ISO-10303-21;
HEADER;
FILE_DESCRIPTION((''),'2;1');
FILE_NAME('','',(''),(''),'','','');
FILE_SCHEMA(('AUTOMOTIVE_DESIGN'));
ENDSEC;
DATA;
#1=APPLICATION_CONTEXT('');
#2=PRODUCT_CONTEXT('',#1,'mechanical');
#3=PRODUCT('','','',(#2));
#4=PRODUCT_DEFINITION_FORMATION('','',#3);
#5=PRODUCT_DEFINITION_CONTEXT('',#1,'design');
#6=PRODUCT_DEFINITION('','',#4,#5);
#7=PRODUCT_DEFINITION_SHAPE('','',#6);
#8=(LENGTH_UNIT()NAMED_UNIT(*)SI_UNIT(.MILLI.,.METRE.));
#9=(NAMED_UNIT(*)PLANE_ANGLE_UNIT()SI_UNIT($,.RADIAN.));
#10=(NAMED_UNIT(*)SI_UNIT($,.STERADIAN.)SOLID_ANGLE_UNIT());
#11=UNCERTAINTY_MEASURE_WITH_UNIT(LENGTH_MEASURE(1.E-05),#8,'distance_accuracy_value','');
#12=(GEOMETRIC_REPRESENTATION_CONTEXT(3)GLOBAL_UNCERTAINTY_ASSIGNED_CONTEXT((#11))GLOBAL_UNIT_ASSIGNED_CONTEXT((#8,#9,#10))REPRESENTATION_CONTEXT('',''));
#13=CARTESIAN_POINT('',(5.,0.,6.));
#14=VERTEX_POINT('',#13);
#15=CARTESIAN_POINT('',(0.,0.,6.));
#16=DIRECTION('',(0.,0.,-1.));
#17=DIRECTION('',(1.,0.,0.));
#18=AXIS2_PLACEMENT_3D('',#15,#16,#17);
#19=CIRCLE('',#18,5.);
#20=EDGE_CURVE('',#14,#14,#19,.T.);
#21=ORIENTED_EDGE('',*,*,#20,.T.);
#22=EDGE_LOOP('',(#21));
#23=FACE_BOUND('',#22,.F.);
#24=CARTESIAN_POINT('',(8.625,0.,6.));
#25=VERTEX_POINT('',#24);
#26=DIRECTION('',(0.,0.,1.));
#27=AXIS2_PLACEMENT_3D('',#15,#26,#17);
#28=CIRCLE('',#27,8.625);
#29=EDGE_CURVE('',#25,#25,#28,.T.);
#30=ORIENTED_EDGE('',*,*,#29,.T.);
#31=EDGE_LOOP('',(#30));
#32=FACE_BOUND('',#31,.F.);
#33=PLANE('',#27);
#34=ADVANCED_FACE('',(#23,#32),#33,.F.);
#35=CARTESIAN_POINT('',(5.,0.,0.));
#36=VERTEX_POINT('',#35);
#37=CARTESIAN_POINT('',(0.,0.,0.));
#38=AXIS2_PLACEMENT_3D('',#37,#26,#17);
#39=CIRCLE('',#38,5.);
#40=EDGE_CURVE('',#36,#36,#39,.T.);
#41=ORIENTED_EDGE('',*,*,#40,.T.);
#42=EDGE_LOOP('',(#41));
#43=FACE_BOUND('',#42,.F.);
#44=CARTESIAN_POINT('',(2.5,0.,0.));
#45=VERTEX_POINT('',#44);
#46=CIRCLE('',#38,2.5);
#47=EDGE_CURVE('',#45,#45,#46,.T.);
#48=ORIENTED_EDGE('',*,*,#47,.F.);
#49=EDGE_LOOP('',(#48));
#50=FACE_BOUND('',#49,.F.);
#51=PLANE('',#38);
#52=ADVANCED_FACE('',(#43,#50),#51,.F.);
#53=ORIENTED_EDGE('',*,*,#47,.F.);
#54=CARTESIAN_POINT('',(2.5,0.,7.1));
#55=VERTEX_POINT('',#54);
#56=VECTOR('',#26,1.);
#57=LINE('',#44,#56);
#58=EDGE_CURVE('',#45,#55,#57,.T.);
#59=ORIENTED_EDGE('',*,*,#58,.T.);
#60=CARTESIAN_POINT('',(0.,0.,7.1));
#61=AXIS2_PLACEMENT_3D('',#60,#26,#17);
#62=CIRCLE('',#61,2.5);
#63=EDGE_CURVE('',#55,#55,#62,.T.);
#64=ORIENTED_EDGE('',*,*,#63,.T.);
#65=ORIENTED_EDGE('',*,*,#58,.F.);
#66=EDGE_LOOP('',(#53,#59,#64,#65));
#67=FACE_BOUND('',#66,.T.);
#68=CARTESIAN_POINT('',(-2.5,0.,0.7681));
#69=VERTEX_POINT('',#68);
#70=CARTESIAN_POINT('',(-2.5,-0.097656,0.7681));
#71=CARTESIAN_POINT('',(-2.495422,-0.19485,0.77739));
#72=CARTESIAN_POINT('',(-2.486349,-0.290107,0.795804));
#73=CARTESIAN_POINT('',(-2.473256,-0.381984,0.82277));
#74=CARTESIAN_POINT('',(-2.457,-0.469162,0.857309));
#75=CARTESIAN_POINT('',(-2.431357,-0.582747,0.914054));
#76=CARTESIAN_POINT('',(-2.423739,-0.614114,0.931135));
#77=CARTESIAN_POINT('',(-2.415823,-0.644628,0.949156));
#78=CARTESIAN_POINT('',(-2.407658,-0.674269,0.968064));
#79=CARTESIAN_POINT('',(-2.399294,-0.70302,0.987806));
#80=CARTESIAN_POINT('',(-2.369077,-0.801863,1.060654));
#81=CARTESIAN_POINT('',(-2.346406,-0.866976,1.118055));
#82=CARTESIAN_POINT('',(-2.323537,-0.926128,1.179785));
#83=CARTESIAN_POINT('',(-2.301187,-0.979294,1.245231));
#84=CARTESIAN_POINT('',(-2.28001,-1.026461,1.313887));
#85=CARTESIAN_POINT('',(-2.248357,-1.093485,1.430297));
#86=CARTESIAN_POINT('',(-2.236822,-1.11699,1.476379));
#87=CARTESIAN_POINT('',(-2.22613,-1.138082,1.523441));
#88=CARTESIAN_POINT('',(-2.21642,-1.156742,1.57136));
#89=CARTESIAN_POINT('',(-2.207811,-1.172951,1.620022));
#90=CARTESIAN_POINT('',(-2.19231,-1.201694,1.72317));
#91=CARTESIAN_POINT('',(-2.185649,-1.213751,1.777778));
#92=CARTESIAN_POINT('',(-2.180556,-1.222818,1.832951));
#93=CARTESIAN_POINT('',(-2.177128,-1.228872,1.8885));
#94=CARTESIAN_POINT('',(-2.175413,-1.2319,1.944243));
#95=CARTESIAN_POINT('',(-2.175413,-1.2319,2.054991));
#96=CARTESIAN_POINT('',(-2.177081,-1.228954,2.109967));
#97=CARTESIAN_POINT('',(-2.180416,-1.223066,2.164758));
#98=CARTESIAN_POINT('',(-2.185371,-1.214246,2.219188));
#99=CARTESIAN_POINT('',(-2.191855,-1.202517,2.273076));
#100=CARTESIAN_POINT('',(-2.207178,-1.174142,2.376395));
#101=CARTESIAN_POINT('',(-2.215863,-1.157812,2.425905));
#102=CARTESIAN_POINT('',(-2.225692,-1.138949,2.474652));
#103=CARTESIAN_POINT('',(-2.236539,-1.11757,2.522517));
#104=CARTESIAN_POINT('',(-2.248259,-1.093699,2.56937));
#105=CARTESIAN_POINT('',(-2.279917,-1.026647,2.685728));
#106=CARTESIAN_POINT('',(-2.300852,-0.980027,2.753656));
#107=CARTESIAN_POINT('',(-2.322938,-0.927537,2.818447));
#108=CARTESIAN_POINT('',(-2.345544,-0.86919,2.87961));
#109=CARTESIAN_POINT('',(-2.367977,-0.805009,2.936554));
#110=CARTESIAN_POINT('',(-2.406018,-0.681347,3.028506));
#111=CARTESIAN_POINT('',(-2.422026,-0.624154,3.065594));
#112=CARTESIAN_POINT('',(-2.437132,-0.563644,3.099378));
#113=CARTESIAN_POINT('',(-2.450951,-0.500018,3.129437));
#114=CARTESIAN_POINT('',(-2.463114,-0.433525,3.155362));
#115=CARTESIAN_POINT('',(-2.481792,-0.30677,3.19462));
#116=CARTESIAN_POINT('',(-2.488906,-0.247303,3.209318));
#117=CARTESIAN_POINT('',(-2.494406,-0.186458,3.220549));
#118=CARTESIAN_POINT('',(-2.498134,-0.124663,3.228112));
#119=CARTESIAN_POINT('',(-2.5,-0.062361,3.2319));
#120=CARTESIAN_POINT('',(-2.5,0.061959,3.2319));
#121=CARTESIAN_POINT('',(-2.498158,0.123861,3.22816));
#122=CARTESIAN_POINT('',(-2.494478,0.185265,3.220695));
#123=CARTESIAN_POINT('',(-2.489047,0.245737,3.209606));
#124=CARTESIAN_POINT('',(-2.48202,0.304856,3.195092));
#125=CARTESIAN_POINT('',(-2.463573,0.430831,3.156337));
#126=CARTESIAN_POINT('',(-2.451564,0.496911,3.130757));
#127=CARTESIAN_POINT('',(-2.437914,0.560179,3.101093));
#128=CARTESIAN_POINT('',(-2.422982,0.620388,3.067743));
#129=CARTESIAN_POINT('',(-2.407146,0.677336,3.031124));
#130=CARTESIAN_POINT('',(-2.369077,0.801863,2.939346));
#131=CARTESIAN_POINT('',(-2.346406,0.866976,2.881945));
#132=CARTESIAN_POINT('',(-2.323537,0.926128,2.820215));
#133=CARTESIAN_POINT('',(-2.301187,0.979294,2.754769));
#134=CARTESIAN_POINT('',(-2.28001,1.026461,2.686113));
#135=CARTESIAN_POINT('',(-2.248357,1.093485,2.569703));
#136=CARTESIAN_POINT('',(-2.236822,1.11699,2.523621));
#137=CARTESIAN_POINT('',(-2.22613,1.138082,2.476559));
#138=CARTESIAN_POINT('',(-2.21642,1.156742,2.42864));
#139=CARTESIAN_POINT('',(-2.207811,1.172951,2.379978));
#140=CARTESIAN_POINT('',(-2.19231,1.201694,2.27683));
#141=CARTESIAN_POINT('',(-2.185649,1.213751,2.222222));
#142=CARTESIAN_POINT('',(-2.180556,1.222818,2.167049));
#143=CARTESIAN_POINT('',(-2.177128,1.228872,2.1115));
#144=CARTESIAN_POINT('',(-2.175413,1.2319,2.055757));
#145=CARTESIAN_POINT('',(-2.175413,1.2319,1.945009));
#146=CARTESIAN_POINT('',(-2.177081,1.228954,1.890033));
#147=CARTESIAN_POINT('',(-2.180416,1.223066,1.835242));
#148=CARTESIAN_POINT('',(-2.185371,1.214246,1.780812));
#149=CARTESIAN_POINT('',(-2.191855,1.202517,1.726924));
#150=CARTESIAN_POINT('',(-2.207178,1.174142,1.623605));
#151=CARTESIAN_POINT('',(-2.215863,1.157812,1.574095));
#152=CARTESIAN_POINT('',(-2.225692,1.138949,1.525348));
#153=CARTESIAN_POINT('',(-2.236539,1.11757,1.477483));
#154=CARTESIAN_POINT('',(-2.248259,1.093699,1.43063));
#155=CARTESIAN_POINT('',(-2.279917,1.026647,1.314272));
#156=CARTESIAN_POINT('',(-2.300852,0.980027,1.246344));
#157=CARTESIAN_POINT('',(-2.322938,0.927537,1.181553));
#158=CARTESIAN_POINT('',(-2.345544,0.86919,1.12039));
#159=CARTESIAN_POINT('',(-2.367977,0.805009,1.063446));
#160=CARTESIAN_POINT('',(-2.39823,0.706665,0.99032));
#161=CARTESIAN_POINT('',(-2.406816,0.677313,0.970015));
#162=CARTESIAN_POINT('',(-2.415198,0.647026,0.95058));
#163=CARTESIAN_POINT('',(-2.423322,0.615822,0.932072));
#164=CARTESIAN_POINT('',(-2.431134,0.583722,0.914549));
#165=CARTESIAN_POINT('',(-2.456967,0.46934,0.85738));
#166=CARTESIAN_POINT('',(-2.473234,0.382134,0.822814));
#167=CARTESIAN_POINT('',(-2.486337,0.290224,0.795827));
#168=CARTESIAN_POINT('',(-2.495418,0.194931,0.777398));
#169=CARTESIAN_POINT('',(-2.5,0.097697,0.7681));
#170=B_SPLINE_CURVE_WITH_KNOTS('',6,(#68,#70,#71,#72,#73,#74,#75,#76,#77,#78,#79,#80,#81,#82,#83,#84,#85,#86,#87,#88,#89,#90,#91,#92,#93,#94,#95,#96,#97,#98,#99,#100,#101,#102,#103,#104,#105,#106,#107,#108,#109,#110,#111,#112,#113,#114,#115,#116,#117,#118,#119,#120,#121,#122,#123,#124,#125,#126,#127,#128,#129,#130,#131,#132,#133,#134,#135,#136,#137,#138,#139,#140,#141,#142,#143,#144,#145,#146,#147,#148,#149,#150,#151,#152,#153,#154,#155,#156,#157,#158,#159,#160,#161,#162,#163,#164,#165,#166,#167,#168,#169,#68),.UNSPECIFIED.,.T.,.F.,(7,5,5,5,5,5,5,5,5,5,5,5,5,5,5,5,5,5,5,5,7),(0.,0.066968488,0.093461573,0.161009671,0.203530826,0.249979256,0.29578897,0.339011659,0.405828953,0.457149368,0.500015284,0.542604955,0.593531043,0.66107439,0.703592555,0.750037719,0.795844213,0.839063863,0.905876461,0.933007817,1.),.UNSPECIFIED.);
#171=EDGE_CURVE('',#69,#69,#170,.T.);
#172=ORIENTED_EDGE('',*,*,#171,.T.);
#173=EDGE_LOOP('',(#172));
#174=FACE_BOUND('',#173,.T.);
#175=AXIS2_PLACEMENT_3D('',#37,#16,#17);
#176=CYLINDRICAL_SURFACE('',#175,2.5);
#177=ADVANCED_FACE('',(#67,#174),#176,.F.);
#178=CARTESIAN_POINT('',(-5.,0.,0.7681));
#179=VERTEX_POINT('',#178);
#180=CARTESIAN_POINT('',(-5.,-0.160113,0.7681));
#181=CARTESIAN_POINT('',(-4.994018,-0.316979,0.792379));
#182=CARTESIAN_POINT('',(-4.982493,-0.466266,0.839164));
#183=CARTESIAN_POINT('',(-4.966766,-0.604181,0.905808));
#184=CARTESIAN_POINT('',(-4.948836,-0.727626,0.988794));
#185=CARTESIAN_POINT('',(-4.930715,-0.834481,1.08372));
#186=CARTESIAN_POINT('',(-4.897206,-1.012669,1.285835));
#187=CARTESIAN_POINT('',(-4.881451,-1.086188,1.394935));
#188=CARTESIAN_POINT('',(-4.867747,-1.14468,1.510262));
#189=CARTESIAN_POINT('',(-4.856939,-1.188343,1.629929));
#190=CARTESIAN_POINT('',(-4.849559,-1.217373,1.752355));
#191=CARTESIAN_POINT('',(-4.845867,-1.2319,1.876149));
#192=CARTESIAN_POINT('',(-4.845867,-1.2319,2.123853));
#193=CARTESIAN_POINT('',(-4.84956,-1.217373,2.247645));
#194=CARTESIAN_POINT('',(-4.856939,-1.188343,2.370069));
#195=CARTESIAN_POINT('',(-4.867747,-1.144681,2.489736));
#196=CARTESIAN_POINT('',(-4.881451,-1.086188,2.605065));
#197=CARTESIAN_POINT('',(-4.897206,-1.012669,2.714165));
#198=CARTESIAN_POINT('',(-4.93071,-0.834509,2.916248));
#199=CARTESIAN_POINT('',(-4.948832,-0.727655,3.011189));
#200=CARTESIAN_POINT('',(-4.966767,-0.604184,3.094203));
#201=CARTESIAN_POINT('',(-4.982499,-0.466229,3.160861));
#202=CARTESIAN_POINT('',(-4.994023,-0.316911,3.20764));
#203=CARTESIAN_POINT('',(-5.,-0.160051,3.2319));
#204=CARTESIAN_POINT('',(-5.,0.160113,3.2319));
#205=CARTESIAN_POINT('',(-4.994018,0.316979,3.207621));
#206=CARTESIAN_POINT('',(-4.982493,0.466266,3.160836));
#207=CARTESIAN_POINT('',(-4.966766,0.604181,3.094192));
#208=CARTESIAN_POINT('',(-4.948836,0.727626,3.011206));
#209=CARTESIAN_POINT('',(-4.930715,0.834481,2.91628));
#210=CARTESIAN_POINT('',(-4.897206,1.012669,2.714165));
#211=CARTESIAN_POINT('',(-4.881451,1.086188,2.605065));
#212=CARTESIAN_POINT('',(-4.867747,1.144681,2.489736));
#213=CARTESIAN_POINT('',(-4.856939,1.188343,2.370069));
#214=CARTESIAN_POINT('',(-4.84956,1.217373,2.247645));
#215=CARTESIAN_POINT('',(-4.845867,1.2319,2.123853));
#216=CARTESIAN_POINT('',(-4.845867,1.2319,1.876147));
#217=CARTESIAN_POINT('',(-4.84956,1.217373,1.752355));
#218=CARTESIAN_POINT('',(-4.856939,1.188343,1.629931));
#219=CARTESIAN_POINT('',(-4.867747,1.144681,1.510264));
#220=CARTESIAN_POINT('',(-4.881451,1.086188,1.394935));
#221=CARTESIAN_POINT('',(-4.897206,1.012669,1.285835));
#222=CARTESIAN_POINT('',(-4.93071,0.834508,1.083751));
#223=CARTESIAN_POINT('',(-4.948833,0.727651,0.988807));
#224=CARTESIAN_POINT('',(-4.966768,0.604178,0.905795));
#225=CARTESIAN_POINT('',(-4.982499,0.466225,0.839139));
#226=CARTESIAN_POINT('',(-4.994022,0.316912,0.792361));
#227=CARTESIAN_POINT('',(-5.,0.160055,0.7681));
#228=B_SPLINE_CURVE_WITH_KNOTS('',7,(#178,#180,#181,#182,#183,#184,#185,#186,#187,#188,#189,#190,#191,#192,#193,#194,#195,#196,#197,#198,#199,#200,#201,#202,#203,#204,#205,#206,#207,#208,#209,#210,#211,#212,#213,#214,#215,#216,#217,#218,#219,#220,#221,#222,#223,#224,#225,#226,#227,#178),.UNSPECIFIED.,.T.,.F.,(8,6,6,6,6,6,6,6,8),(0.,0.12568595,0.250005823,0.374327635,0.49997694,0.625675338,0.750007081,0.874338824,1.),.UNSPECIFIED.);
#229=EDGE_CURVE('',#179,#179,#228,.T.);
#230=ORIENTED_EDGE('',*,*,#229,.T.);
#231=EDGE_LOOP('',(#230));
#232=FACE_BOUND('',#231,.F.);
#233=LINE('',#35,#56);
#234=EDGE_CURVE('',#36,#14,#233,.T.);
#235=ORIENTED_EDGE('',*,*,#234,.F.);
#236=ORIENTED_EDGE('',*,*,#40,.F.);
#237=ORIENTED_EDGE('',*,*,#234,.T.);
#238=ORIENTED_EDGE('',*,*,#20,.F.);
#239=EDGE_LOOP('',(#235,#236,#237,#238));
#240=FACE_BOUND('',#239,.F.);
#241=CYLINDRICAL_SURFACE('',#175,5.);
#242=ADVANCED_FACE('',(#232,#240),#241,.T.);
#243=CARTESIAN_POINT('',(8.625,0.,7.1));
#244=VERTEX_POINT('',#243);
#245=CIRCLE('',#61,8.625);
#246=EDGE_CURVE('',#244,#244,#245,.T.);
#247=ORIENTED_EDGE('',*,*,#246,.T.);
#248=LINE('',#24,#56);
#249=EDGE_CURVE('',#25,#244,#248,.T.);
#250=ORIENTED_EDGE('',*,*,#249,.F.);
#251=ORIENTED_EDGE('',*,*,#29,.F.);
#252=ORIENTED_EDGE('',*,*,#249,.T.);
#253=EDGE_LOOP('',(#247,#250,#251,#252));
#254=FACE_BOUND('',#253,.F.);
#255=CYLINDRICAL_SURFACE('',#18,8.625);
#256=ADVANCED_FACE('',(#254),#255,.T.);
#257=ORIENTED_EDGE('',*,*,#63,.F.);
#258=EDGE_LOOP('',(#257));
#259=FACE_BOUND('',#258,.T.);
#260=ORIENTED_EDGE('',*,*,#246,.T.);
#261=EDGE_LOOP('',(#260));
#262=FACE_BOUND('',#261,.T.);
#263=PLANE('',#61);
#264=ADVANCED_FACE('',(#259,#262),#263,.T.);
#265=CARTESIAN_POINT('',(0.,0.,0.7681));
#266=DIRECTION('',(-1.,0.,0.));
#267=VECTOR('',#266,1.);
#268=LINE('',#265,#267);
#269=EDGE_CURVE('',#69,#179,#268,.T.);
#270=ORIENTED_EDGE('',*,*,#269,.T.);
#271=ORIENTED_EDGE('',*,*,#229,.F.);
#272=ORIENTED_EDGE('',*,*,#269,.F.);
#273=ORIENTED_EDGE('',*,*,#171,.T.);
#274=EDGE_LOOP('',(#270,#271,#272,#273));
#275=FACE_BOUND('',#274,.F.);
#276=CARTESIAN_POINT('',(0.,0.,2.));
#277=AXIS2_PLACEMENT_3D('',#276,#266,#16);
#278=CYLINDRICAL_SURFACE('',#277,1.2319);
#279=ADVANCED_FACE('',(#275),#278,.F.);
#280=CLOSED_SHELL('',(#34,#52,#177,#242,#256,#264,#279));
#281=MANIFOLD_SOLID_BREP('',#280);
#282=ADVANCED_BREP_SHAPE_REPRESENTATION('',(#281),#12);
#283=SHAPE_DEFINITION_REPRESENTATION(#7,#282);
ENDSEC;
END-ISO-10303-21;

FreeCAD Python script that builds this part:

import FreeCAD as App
import Part
import Sketcher
from FreeCAD import Vector

doc = App.newDocument("Part")
body = doc.addObject("PartDesign::Body", "Body")

# Sketch on XY plane
sketch1 = body.newObject("Sketcher::SketchObject", "Sketch")
sketch1.AttachmentSupport = (doc.getObject("XY_Plane"), [""])
sketch1.MapMode = "FlatFace"
sketch1.addGeometry([
    Part.Circle(Vector(0, 0, 0), Vector(0, 0, 1), 5),
    Part.Circle(Vector(0, 0, 0), Vector(0, 0, 1), 2.5),
], False)
sketch1.addConstraint([
    Sketcher.Constraint("Coincident", 0, 3, -1, 1),
    Sketcher.Constraint("Coincident", 1, 3, -1, 1),
    Sketcher.Constraint("Diameter", 0, 10.0),
    Sketcher.Constraint("Diameter", 1, 5.0),
])
pad1 = body.newObject("PartDesign::Pad", "Pad")
pad1.Profile = sketch1
pad1.Length = 6

# Sketch on XY plane
sketch2 = body.newObject("Sketcher::SketchObject", "Sketch001")
sketch2.AttachmentSupport = (doc.getObject("XY_Plane"), [""])
sketch2.MapMode = "FlatFace"
sketch2.AttachmentOffset = App.Placement(Vector(0, 0, 6), App.Rotation())
sketch2.addGeometry([
    Part.Circle(Vector(0, 0, 0), Vector(0, 0, 1), 8.625),
    Part.Circle(Vector(0, 0, 0), Vector(0, 0, 1), 2.5),
], False)
sketch2.addConstraint([
    Sketcher.Constraint("Coincident", 0, 3, -1, 1),
    Sketcher.Constraint("Coincident", 1, 3, -1, 1),
    Sketcher.Constraint("Diameter", 0, 17.25),
    Sketcher.Constraint("Diameter", 1, 5.0),
])
pad2 = body.newObject("PartDesign::Pad", "Pad001")
pad2.Profile = sketch2
pad2.Length = 1.1

# Sketch on YZ plane
sketch3 = body.newObject("Sketcher::SketchObject", "Sketch002")
sketch3.AttachmentSupport = (doc.getObject("YZ_Plane"), [""])
sketch3.MapMode = "FlatFace"
sketch3.addGeometry(Part.Circle(Vector(0, 2, 0), Vector(0, 0, 1), 1.2319), False)
sketch3.addConstraint([
    Sketcher.Constraint("PointOnObject", 0, 3, -2),
    Sketcher.Constraint("DistanceY", -1, 1, 0, 3, 2.0),
    Sketcher.Constraint("Diameter", 0, 2.4638),
])
doc.recompute()
hole = body.newObject("PartDesign::Hole", "Hole")
hole.Profile = sketch3
hole.ThreadType = "None"
hole.Diameter = 2.4638
hole.DepthType = "ThroughAll"

doc.recompute()
